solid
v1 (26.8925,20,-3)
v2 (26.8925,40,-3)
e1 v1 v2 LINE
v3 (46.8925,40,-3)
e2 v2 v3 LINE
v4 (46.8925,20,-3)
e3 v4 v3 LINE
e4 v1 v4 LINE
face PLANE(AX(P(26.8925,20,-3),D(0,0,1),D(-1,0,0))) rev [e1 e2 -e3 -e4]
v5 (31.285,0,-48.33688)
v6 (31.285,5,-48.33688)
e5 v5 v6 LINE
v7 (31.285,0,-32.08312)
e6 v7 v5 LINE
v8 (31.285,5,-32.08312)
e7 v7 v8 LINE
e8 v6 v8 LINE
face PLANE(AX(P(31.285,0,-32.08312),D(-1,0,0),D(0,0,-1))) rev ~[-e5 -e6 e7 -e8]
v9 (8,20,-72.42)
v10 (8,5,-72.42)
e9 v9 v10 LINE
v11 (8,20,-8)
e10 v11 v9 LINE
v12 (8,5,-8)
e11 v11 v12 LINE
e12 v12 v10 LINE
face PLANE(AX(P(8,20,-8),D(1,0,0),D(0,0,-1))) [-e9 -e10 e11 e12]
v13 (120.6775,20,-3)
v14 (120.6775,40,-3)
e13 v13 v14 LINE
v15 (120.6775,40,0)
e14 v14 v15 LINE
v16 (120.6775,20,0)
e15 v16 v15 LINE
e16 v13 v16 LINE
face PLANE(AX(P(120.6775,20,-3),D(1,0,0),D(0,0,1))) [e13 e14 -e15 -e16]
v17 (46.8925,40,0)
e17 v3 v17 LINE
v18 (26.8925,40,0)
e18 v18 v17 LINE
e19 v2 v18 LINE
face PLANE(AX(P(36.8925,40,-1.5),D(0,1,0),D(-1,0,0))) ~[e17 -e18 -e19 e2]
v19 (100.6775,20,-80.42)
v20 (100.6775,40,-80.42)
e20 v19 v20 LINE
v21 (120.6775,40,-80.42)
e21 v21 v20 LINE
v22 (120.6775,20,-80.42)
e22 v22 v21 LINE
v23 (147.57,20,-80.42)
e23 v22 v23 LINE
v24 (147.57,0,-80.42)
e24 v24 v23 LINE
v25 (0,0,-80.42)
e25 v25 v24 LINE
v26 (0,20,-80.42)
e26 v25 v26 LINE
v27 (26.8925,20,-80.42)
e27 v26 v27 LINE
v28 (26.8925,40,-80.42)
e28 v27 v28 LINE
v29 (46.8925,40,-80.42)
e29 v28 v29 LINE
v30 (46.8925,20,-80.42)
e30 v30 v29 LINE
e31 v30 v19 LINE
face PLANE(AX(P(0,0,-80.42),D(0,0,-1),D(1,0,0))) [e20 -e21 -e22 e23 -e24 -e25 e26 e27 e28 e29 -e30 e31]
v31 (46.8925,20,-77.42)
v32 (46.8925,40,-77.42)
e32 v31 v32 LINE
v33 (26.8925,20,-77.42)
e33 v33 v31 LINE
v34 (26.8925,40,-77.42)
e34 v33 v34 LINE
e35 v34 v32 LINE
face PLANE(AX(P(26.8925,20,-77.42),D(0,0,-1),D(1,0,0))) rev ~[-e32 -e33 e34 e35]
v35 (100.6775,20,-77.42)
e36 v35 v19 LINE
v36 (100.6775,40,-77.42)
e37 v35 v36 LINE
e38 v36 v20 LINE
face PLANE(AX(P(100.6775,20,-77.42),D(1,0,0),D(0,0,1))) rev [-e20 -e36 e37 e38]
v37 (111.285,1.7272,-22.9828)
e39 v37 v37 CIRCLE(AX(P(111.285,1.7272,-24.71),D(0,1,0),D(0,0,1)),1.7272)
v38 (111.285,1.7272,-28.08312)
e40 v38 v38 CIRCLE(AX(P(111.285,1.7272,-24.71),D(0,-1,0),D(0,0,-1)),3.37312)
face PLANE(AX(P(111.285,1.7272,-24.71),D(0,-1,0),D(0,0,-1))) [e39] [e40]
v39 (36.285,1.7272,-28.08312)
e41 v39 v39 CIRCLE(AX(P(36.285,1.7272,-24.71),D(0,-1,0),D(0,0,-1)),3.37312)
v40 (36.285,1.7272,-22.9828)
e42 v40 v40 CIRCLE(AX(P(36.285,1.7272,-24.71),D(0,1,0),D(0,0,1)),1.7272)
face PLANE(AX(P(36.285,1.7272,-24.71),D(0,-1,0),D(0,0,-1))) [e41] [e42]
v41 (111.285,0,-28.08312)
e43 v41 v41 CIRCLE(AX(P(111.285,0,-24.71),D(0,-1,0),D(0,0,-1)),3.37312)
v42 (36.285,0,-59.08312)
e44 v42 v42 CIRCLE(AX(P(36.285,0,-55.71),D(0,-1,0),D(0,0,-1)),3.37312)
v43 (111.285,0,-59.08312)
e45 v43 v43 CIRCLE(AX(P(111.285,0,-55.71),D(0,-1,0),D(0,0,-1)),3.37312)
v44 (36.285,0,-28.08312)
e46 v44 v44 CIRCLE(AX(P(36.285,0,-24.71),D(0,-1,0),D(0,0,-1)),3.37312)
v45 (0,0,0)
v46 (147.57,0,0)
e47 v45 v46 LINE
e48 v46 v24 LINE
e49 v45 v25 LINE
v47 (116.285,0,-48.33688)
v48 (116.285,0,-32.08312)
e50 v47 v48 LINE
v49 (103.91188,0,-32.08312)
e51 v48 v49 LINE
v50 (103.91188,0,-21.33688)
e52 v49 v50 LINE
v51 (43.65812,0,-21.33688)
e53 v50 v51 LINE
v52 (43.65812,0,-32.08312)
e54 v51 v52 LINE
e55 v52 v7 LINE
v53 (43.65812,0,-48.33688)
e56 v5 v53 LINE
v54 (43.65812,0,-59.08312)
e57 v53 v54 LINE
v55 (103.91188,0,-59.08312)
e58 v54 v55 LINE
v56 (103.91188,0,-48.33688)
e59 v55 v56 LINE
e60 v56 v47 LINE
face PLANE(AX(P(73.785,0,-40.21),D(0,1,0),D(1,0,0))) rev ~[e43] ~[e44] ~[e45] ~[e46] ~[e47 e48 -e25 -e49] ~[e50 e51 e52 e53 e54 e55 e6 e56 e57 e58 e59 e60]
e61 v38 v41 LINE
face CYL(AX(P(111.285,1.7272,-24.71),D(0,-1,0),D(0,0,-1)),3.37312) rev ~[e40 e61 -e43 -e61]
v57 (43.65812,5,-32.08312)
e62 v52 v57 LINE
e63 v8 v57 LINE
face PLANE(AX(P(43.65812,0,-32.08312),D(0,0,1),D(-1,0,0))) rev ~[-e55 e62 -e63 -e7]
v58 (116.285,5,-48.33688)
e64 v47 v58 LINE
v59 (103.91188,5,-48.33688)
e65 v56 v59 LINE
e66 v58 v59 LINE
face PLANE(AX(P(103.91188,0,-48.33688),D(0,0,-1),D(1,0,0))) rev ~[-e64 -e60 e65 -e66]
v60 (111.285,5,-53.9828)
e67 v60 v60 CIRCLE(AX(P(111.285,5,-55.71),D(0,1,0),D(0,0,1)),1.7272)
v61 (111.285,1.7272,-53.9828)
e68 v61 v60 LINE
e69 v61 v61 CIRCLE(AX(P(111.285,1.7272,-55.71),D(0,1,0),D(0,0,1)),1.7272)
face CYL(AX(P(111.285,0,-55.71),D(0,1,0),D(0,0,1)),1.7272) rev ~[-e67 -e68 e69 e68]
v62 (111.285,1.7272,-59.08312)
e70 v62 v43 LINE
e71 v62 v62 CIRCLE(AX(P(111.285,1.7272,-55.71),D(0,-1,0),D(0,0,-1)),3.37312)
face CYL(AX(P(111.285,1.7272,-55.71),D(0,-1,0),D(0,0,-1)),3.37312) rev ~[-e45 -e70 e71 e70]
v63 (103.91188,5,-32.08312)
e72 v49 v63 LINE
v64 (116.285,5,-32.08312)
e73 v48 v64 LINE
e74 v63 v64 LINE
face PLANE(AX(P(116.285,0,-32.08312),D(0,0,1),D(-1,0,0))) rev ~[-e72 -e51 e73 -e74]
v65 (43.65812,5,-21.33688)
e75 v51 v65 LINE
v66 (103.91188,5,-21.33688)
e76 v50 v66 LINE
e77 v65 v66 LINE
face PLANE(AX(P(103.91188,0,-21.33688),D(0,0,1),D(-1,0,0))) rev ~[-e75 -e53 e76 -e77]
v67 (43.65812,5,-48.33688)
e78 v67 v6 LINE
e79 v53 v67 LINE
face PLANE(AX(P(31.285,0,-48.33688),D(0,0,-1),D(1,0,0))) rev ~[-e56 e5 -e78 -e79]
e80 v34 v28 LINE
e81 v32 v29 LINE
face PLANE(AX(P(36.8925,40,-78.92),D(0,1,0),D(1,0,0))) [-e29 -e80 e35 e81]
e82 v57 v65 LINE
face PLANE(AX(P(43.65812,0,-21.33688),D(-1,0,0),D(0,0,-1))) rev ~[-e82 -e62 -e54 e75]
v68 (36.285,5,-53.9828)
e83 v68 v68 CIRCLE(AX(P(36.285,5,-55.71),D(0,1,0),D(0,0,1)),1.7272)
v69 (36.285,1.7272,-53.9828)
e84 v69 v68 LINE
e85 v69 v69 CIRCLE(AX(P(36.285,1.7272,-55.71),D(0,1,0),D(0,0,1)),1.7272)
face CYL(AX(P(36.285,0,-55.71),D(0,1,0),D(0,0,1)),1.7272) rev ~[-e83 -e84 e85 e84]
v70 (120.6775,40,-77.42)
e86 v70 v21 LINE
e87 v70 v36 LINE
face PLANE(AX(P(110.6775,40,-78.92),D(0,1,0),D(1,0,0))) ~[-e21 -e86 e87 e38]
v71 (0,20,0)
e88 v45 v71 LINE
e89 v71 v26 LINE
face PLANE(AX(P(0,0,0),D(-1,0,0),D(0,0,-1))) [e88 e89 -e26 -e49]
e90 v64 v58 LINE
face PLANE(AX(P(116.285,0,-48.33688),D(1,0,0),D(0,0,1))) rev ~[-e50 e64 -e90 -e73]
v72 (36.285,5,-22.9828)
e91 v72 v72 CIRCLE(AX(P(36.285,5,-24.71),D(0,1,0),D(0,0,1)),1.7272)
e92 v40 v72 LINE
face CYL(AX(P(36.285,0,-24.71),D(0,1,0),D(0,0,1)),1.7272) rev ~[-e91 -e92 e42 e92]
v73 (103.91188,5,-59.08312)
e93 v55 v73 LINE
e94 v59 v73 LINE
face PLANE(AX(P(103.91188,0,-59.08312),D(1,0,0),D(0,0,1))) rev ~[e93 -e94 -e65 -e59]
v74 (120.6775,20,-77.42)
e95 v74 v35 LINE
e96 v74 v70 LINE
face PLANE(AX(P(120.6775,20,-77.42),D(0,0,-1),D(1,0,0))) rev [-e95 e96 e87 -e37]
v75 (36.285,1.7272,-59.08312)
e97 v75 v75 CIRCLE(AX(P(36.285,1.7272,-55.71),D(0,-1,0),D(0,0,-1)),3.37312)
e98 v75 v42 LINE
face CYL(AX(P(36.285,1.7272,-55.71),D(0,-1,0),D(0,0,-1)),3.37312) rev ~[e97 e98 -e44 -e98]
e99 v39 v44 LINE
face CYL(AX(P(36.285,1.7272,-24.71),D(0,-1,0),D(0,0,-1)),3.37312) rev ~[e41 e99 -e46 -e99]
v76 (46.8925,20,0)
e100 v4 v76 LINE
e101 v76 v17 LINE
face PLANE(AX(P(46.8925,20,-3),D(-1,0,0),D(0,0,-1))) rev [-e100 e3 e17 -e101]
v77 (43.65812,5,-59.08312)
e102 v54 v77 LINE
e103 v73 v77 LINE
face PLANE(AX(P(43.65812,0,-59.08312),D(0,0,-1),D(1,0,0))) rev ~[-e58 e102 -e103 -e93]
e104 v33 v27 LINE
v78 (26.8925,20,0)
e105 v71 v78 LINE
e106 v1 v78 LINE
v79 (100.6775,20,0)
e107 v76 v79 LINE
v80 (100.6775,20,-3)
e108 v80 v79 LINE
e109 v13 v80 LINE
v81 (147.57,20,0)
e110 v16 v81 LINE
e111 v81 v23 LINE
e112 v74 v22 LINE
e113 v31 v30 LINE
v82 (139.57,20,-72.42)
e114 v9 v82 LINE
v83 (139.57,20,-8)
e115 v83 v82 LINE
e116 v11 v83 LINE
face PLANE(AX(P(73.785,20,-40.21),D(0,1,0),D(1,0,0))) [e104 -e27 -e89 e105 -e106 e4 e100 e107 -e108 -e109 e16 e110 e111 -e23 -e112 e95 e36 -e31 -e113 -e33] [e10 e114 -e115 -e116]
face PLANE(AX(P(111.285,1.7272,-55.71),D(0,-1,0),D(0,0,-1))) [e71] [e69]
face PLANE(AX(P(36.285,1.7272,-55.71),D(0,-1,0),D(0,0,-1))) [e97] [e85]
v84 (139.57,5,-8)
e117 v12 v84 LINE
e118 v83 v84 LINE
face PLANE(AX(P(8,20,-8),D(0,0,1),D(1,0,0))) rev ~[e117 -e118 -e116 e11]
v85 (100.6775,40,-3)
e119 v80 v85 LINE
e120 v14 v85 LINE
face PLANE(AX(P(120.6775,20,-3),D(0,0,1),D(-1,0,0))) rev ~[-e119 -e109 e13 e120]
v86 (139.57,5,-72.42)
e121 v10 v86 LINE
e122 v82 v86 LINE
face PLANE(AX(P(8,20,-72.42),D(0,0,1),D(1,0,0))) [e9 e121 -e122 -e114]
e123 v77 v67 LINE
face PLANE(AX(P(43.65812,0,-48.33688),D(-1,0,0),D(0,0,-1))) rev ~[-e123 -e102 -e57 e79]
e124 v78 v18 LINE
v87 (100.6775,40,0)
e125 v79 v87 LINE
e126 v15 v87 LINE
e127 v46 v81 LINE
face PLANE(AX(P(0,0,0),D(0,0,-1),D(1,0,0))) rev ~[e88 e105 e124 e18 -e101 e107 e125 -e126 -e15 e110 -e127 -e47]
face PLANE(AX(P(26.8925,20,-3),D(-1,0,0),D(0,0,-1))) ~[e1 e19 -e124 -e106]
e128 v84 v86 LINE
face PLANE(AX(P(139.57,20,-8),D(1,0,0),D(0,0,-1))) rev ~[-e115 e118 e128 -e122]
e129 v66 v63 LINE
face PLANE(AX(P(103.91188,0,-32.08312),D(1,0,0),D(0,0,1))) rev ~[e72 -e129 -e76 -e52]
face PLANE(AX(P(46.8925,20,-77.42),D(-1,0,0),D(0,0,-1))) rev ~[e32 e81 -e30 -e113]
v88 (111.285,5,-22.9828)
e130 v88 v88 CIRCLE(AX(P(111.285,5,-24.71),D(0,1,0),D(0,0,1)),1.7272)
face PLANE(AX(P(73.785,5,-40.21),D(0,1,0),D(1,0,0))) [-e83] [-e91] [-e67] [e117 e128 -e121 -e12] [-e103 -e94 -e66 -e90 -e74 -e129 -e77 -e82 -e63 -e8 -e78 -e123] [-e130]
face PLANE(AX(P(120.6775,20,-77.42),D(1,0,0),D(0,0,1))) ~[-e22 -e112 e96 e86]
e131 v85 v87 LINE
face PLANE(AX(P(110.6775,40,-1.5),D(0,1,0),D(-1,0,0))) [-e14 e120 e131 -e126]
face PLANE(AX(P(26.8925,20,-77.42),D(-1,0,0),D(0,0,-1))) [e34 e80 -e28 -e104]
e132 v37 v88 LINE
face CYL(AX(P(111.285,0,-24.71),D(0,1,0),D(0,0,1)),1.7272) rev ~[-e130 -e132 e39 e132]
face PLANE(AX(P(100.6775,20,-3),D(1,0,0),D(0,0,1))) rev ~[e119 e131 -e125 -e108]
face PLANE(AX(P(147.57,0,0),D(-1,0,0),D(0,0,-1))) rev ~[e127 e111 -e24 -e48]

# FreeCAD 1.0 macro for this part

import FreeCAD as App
import Part
import Sketcher


def add_polygon(sketch, points):
    """Adds a closed chain of lines whose ends are joined by coincident constraints."""
    first, n = sketch.GeometryCount, len(points)
    for a, b in zip(points, points[1:] + points[:1]):
        sketch.addGeometry(Part.LineSegment(App.Vector(*a, 0), App.Vector(*b, 0)), False)
    for i in range(n):
        sketch.addConstraint(Sketcher.Constraint("Coincident", first + i, 2, first + (i + 1) % n, 1))

doc = App.newDocument("Part")
body = doc.addObject("PartDesign::Body", "Body")

sketch1 = body.newObject("Sketcher::SketchObject", "Sketch")
sketch1.AttachmentSupport = (doc.getObject("XZ_Plane"), [""])
sketch1.MapMode = "FlatFace"
add_polygon(sketch1, [(0, -80), (0, 0), (148, 0), (148, -80)])
sketch1.addConstraint(Sketcher.Constraint("Vertical", 0))
sketch1.addConstraint(Sketcher.Constraint("Horizontal", 1))
sketch1.addConstraint(Sketcher.Constraint("Vertical", 2))
sketch1.addConstraint(Sketcher.Constraint("Horizontal", 3))
sketch1.addConstraint(Sketcher.Constraint("Coincident", 0, 2, -1, 1))
sketch1.addConstraint(Sketcher.Constraint("DistanceX", 1, 1, 1, 2, 147.57))
sketch1.addConstraint(Sketcher.Constraint("DistanceY", 0, 1, 0, 2, 80.42))
pad1 = body.newObject("PartDesign::Pad", "Pad")
pad1.Profile = sketch1
pad1.Length = 20
pad1.Reversed = True

sketch2 = body.newObject("Sketcher::SketchObject", "Sketch001")
sketch2.AttachmentSupport = (doc.getObject("XZ_Plane"), [""])
sketch2.MapMode = "FlatFace"
sketch2.AttachmentOffset = App.Placement(App.Vector(0, 0, -20), App.Rotation())
add_polygon(sketch2, [(8, -72), (8, -8), (140, -8), (140, -72)])
sketch2.addConstraint(Sketcher.Constraint("Vertical", 0))
sketch2.addConstraint(Sketcher.Constraint("Horizontal", 1))
sketch2.addConstraint(Sketcher.Constraint("Vertical", 2))
sketch2.addConstraint(Sketcher.Constraint("Horizontal", 3))
sketch2.addConstraint(Sketcher.Constraint("DistanceX", -1, 1, 0, 2, 8.0))
sketch2.addConstraint(Sketcher.Constraint("DistanceY", 0, 2, -1, 1, 8.0))
sketch2.addConstraint(Sketcher.Constraint("DistanceX", 1, 1, 1, 2, 131.57))
sketch2.addConstraint(Sketcher.Constraint("DistanceY", 0, 1, 0, 2, 64.42))
pocket1 = body.newObject("PartDesign::Pocket", "Pocket")
pocket1.Profile = sketch2
pocket1.Length = 15
pocket1.Reversed = True

sketch3 = body.newObject("Sketcher::SketchObject", "Sketch002")
sketch3.AttachmentSupport = (doc.getObject("XZ_Plane"), [""])
sketch3.MapMode = "FlatFace"
sketch3.addGeometry(Part.Circle(App.Vector(36.3, -24.7, 0), App.Vector(0, 0, 1), 1.7), False)
sketch3.addGeometry(Part.Circle(App.Vector(36.3, -55.7, 0), App.Vector(0, 0, 1), 1.7), False)
sketch3.addGeometry(Part.Circle(App.Vector(111.3, -24.7, 0), App.Vector(0, 0, 1), 1.7), False)
sketch3.addGeometry(Part.Circle(App.Vector(111.3, -55.7, 0), App.Vector(0, 0, 1), 1.7), False)
sketch3.addConstraint(Sketcher.Constraint("Equal", 0, 1))
sketch3.addConstraint(Sketcher.Constraint("Equal", 1, 2))
sketch3.addConstraint(Sketcher.Constraint("Equal", 2, 3))
sketch3.addConstraint(Sketcher.Constraint("Horizontal", 0, 3, 2, 3))
sketch3.addConstraint(Sketcher.Constraint("Horizontal", 1, 3, 3, 3))
sketch3.addConstraint(Sketcher.Constraint("Vertical", 0, 3, 1, 3))
sketch3.addConstraint(Sketcher.Constraint("Vertical", 2, 3, 3, 3))
sketch3.addConstraint(Sketcher.Constraint("DistanceY", 1, 3, 0, 3, 31.0))
sketch3.addConstraint(Sketcher.Constraint("DistanceX", 0, 3, 2, 3, 75.0))
sketch3.addConstraint(Sketcher.Constraint("Diameter", 0, 3.4544))
sketch3.addConstraint(Sketcher.Constraint("DistanceY", 0, 3, -1, 1, 24.71))
sketch3.addConstraint(Sketcher.Constraint("DistanceX", -1, 1, 0, 3, 36.285))
doc.recompute()
hole = body.newObject("PartDesign::Hole", "Hole")
hole.Profile = sketch3
hole.ThreadType = "None"
hole.Diameter = 3.4544
hole.DepthType = "ThroughAll"
hole.HoleCutType = "Counterbore"
hole.HoleCutDiameter = 6.74624
hole.HoleCutDepth = 1.7272

sketch4 = body.newObject("Sketcher::SketchObject", "Sketch003")
sketch4.AttachmentSupport = (doc.getObject("XZ_Plane"), [""])
sketch4.MapMode = "FlatFace"
add_polygon(sketch4, [(104, -32), (104, -21), (44, -21), (44, -32), (31, -32), (31, -48), (44, -48), (44, -59), (104, -59), (104, -48), (116, -48), (116, -32)])
sketch4.addConstraint(Sketcher.Constraint("Vertical", 0))
sketch4.addConstraint(Sketcher.Constraint("Horizontal", 1))
sketch4.addConstraint(Sketcher.Constraint("Vertical", 2))
sketch4.addConstraint(Sketcher.Constraint("Horizontal", 3))
sketch4.addConstraint(Sketcher.Constraint("Vertical", 4))
sketch4.addConstraint(Sketcher.Constraint("Horizontal", 5))
sketch4.addConstraint(Sketcher.Constraint("Vertical", 6))
sketch4.addConstraint(Sketcher.Constraint("Horizontal", 7))
sketch4.addConstraint(Sketcher.Constraint("Vertical", 8))
sketch4.addConstraint(Sketcher.Constraint("Horizontal", 9))
sketch4.addConstraint(Sketcher.Constraint("Vertical", 10))
sketch4.addConstraint(Sketcher.Constraint("Horizontal", 11))
sketch4.addConstraint(Sketcher.Constraint("Horizontal", 5, 2, 8, 2))
sketch4.addConstraint(Sketcher.Constraint("Horizontal", 3, 2, 10, 2))
sketch4.addConstraint(Sketcher.Constraint("Vertical", 2, 2, 5, 2))
sketch4.addConstraint(Sketcher.Constraint("Vertical", 0, 2, 7, 2))
sketch4.addConstraint(Sketcher.Constraint("Equal", 5, 9))
sketch4.addConstraint(Sketcher.Constraint("Equal", 2, 6))
sketch4.addConstraint(Sketcher.Constraint("DistanceY", 4, 2, 1, 2, 27.0))
sketch4.addConstraint(Sketcher.Constraint("DistanceX", -1, 1, 3, 2, 31.285))
sketch4.addConstraint(Sketcher.Constraint("DistanceX", -1, 1, 9, 2, 116.285))
sketch4.addConstraint(Sketcher.Constraint("DistanceX", 1, 2, 1, 1, 60.25376))
sketch4.addConstraint(Sketcher.Constraint("DistanceY", 0, 1, 0, 2, 10.74624))
sketch4.addConstraint(Sketcher.Constraint("DistanceY", 0, 2, -1, 1, 21.33688))
pocket2 = body.newObject("PartDesign::Pocket", "Pocket001")
pocket2.Profile = sketch4
pocket2.Type = "ThroughAll"

sketch5 = body.newObject("Sketcher::SketchObject", "Sketch004")
sketch5.AttachmentSupport = (doc.getObject("XZ_Plane"), [""])
sketch5.MapMode = "FlatFace"
sketch5.AttachmentOffset = App.Placement(App.Vector(0, 0, -20), App.Rotation())
add_polygon(sketch5, [(26.9, -80.4), (26.9, -77.4), (46.9, -77.4), (46.9, -80.4)])
sketch5.addConstraint(Sketcher.Constraint("Vertical", 0))
sketch5.addConstraint(Sketcher.Constraint("Horizontal", 1))
sketch5.addConstraint(Sketcher.Constraint("Vertical", 2))
sketch5.addConstraint(Sketcher.Constraint("Horizontal", 3))
sketch5.addConstraint(Sketcher.Constraint("DistanceX", 1, 1, 1, 2, 20.0))
sketch5.addConstraint(Sketcher.Constraint("DistanceY", 0, 1, 0, 2, 3.0))
sketch5.addConstraint(Sketcher.Constraint("DistanceY", 0, 2, -1, 1, 77.42))
sketch5.addConstraint(Sketcher.Constraint("DistanceX", -1, 1, 0, 2, 26.8925))
pad2 = body.newObject("PartDesign::Pad", "Pad001")
pad2.Profile = sketch5
pad2.Length = 20
pad2.Reversed = True
doc.recompute()

datumplane = body.newObject("PartDesign::Plane", "DatumPlane")
datumplane.AttachmentSupport = (doc.getObject("YZ_Plane"), [""])
datumplane.MapMode = "FlatFace"
datumplane.AttachmentOffset = App.Placement(App.Vector(0, 0, 73.785), App.Rotation())
mirrored = body.newObject("PartDesign::Mirrored", "Mirrored")
mirrored.Originals = [pad2]
mirrored.MirrorPlane = (datumplane, [""])
body.Tip = mirrored
doc.recompute()

datumplane2 = body.newObject("PartDesign::Plane", "DatumPlane001")
datumplane2.AttachmentSupport = (doc.getObject("XY_Plane"), [""])
datumplane2.MapMode = "FlatFace"
datumplane2.AttachmentOffset = App.Placement(App.Vector(0, 0, -40.21), App.Rotation())
mirrored2 = body.newObject("PartDesign::Mirrored", "Mirrored001")
mirrored2.Originals = [pad2]
mirrored2.MirrorPlane = (datumplane2, [""])
body.Tip = mirrored2

sketch6 = body.newObject("Sketcher::SketchObject", "Sketch005")
sketch6.AttachmentSupport = (doc.getObject("XZ_Plane"), [""])
sketch6.MapMode = "FlatFace"
sketch6.AttachmentOffset = App.Placement(App.Vector(0, 0, -20), App.Rotation())
add_polygon(sketch6, [(120.7, 0), (120.7, -3), (100.7, -3), (100.7, 0)])
sketch6.addConstraint(Sketcher.Constraint("Vertical", 0))
sketch6.addConstraint(Sketcher.Constraint("Horizontal", 1))
sketch6.addConstraint(Sketcher.Constraint("Vertical", 2))
sketch6.addConstraint(Sketcher.Constraint("Horizontal", 3))
sketch6.addConstraint(Sketcher.Constraint("PointOnObject", 2, 2, -1))
sketch6.addConstraint(Sketcher.Constraint("DistanceX", 1, 2, 1, 1, 20.0))
sketch6.addConstraint(Sketcher.Constraint("DistanceY", 0, 2, 0, 1, 3.0))
sketch6.addConstraint(Sketcher.Constraint("DistanceX", -1, 1, 0, 2, 120.6775))
pad3 = body.newObject("PartDesign::Pad", "Pad002")
pad3.Profile = sketch6
pad3.Length = 20
pad3.Reversed = True

doc.recompute()
